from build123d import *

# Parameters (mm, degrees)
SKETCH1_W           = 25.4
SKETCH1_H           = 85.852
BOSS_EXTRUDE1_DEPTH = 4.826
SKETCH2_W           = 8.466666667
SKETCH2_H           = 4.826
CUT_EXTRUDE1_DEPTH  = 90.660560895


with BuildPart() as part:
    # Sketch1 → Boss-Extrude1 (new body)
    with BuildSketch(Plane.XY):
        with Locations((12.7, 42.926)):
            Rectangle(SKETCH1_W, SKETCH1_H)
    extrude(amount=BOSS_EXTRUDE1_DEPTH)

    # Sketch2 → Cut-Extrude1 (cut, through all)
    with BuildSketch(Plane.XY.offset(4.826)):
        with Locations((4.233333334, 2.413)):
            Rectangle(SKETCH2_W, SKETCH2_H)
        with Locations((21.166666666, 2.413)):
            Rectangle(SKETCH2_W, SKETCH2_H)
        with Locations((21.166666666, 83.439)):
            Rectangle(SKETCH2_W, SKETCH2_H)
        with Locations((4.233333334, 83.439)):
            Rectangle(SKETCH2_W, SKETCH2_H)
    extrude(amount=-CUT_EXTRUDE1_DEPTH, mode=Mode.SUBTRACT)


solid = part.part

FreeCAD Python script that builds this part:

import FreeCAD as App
import Part
import Sketcher

V = App.Vector
Q = App.Units.Quantity

doc = App.newDocument("Part")
body = doc.addObject("PartDesign::Body", "Body")

# Sketch on XY plane
sketch1 = doc.addObject("Sketcher::SketchObject", "Sketch")
body.addObject(sketch1)
sketch1.AttachmentSupport = (doc.XY_Plane, [""])
sketch1.MapMode = "FlatFace"
sketch1.addGeometry(Part.LineSegment(V(0, 86, 0), V(0, 0, 0)), False)
sketch1.addGeometry(Part.LineSegment(V(0, 0, 0), V(25, 0, 0)), False)
sketch1.addGeometry(Part.LineSegment(V(25, 0, 0), V(25, 86, 0)), False)
sketch1.addGeometry(Part.LineSegment(V(25, 86, 0), V(0, 86, 0)), False)
sketch1.addConstraint(Sketcher.Constraint("Coincident", 0, 2, 1, 1))
sketch1.addConstraint(Sketcher.Constraint("Coincident", 1, 2, 2, 1))
sketch1.addConstraint(Sketcher.Constraint("Coincident", 2, 2, 3, 1))
sketch1.addConstraint(Sketcher.Constraint("Coincident", 3, 2, 0, 1))
sketch1.addConstraint(Sketcher.Constraint("Vertical", 0))
sketch1.addConstraint(Sketcher.Constraint("Horizontal", 1))
sketch1.addConstraint(Sketcher.Constraint("Vertical", 2))
sketch1.addConstraint(Sketcher.Constraint("Horizontal", 3))
sketch1.addConstraint(Sketcher.Constraint("Coincident", 0, 2, -1, 1))
sketch1.addConstraint(Sketcher.Constraint("DistanceX", 1, 1, 1, 2, Q("1 in")))
sketch1.addConstraint(Sketcher.Constraint("DistanceY", 0, 2, 0, 1, Q("3.38 in")))
pad1 = doc.addObject("PartDesign::Pad", "Pad")
body.addObject(pad1)
pad1.Profile = sketch1
pad1.Length = Q("0.19 in")

# Sketch on XY plane
sketch2 = doc.addObject("Sketcher::SketchObject", "Sketch001")
body.addObject(sketch2)
sketch2.AttachmentSupport = (doc.XY_Plane, [""])
sketch2.MapMode = "FlatFace"
sketch2.AttachmentOffset = App.Placement(V(0, 0, 0.19 * 25.4), App.Rotation())
sketch2.addGeometry(Part.LineSegment(V(0, 4.8, 0), V(0, 0, 0)), False)
sketch2.addGeometry(Part.LineSegment(V(0, 0, 0), V(8.5, 0, 0)), False)
sketch2.addGeometry(Part.LineSegment(V(8.5, 0, 0), V(8.5, 4.8, 0)), False)
sketch2.addGeometry(Part.LineSegment(V(8.5, 4.8, 0), V(0, 4.8, 0)), False)
sketch2.addGeometry(Part.LineSegment(V(16.9, 4.8, 0), V(16.9, 0, 0)), False)
sketch2.addGeometry(Part.LineSegment(V(16.9, 0, 0), V(25.4, 0, 0)), False)
sketch2.addGeometry(Part.LineSegment(V(25.4, 0, 0), V(25.4, 4.8, 0)), False)
sketch2.addGeometry(Part.LineSegment(V(25.4, 4.8, 0), V(16.9, 4.8, 0)), False)
sketch2.addGeometry(Part.LineSegment(V(16.9, 85.9, 0), V(16.9, 81, 0)), False)
sketch2.addGeometry(Part.LineSegment(V(16.9, 81, 0), V(25.4, 81, 0)), False)
sketch2.addGeometry(Part.LineSegment(V(25.4, 81, 0), V(25.4, 85.9, 0)), False)
sketch2.addGeometry(Part.LineSegment(V(25.4, 85.9, 0), V(16.9, 85.9, 0)), False)
sketch2.addGeometry(Part.LineSegment(V(0, 85.9, 0), V(0, 81, 0)), False)
sketch2.addGeometry(Part.LineSegment(V(0, 81, 0), V(8.5, 81, 0)), False)
sketch2.addGeometry(Part.LineSegment(V(8.5, 81, 0), V(8.5, 85.9, 0)), False)
sketch2.addGeometry(Part.LineSegment(V(8.5, 85.9, 0), V(0, 85.9, 0)), False)
sketch2.addConstraint(Sketcher.Constraint("Coincident", 0, 2, 1, 1))
sketch2.addConstraint(Sketcher.Constraint("Coincident", 1, 2, 2, 1))
sketch2.addConstraint(Sketcher.Constraint("Coincident", 2, 2, 3, 1))
sketch2.addConstraint(Sketcher.Constraint("Coincident", 3, 2, 0, 1))
sketch2.addConstraint(Sketcher.Constraint("Coincident", 4, 2, 5, 1))
sketch2.addConstraint(Sketcher.Constraint("Coincident", 5, 2, 6, 1))
sketch2.addConstraint(Sketcher.Constraint("Coincident", 6, 2, 7, 1))
sketch2.addConstraint(Sketcher.Constraint("Coincident", 7, 2, 4, 1))
sketch2.addConstraint(Sketcher.Constraint("Coincident", 8, 2, 9, 1))
sketch2.addConstraint(Sketcher.Constraint("Coincident", 9, 2, 10, 1))
sketch2.addConstraint(Sketcher.Constraint("Coincident", 10, 2, 11, 1))
sketch2.addConstraint(Sketcher.Constraint("Coincident", 11, 2, 8, 1))
sketch2.addConstraint(Sketcher.Constraint("Coincident", 12, 2, 13, 1))
sketch2.addConstraint(Sketcher.Constraint("Coincident", 13, 2, 14, 1))
sketch2.addConstraint(Sketcher.Constraint("Coincident", 14, 2, 15, 1))
sketch2.addConstraint(Sketcher.Constraint("Coincident", 15, 2, 12, 1))
sketch2.addConstraint(Sketcher.Constraint("Vertical", 0))
sketch2.addConstraint(Sketcher.Constraint("Horizontal", 1))
sketch2.addConstraint(Sketcher.Constraint("Vertical", 2))
sketch2.addConstraint(Sketcher.Constraint("Horizontal", 3))
sketch2.addConstraint(Sketcher.Constraint("Vertical", 4))
sketch2.addConstraint(Sketcher.Constraint("Horizontal", 5))
sketch2.addConstraint(Sketcher.Constraint("Vertical", 6))
sketch2.addConstraint(Sketcher.Constraint("Horizontal", 7))
sketch2.addConstraint(Sketcher.Constraint("Vertical", 8))
sketch2.addConstraint(Sketcher.Constraint("Horizontal", 9))
sketch2.addConstraint(Sketcher.Constraint("Vertical", 10))
sketch2.addConstraint(Sketcher.Constraint("Horizontal", 11))
sketch2.addConstraint(Sketcher.Constraint("Vertical", 12))
sketch2.addConstraint(Sketcher.Constraint("Horizontal", 13))
sketch2.addConstraint(Sketcher.Constraint("Vertical", 14))
sketch2.addConstraint(Sketcher.Constraint("Horizontal", 15))
sketch2.addConstraint(Sketcher.Constraint("Coincident", 0, 2, -1, 1))
sketch2.addConstraint(Sketcher.Constraint("PointOnObject", 4, 2, -1))
sketch2.addConstraint(Sketcher.Constraint("PointOnObject", 12, 2, -2))
sketch2.addConstraint(Sketcher.Constraint("Horizontal", 3, 2, 6, 2))
sketch2.addConstraint(Sketcher.Constraint("Horizontal", 9, 2, 12, 2))
sketch2.addConstraint(Sketcher.Constraint("Horizontal", 11, 2, 14, 2))
sketch2.addConstraint(Sketcher.Constraint("Vertical", 7, 2, 8, 2))
sketch2.addConstraint(Sketcher.Constraint("Vertical", 6, 2, 9, 2))
sketch2.addConstraint(Sketcher.Constraint("Vertical", 2, 2, 13, 2))
sketch2.addConstraint(Sketcher.Constraint("Equal", 3, 5))
sketch2.addConstraint(Sketcher.Constraint("Equal", 6, 8))
sketch2.addConstraint(Sketcher.Constraint("DistanceX", -1, 1, 5, 2, Q("1 in")))
sketch2.addConstraint(Sketcher.Constraint("DistanceY", 7, 2, 8, 2, Q("3 in")))
sketch2.addConstraint(Sketcher.Constraint("DistanceY", 0, 2, 0, 1, Q("0.19 in")))
sketch2.addConstraint(Sketcher.Constraint("DistanceX", 1, 1, 1, 2, 8.466667))
pocket1 = doc.addObject("PartDesign::Pocket", "Pocket")
body.addObject(pocket1)
pocket1.Profile = sketch2
pocket1.Type = "ThroughAll"

doc.recompute()
